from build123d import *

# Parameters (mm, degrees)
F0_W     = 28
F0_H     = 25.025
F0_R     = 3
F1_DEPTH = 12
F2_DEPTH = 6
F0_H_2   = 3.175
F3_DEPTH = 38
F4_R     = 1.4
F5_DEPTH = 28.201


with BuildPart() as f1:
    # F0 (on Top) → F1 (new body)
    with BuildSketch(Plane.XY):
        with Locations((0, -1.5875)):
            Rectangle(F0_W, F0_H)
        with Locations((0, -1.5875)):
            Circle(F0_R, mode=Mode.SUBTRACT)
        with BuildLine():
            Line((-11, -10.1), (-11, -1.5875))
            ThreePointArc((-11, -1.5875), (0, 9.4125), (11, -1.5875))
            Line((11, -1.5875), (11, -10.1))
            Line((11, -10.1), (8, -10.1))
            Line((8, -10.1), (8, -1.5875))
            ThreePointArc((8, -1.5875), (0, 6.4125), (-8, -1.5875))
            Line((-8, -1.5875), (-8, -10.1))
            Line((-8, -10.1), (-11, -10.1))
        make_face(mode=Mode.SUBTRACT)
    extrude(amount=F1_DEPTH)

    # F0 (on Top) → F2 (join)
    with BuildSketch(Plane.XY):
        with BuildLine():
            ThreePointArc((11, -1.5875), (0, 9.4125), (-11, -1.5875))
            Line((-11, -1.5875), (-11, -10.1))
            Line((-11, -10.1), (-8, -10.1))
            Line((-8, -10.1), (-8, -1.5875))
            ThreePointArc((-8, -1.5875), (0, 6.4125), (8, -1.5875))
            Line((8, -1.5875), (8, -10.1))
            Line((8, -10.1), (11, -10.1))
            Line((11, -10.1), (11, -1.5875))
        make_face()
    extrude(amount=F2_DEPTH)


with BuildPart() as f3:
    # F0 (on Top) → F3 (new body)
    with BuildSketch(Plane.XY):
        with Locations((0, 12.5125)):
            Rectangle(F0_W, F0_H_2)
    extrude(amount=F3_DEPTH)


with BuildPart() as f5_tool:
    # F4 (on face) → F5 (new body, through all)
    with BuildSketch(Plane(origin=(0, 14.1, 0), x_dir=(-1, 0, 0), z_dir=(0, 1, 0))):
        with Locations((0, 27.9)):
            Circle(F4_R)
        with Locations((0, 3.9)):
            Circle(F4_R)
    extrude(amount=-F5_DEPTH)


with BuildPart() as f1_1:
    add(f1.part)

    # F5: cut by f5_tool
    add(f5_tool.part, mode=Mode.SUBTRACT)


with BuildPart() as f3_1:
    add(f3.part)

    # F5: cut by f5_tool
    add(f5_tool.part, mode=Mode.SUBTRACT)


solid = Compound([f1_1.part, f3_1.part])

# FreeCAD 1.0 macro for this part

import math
import FreeCAD as App
import Part
import Sketcher

V = App.Vector

doc = App.newDocument("Part")
body = doc.addObject("PartDesign::Body", "Body")

# Sketch on XY plane
sketch1 = body.newObject("Sketcher::SketchObject", "Sketch")
sketch1.AttachmentSupport = (doc.getObject("XY_Plane"), [""])
sketch1.MapMode = "FlatFace"
sketch1.addGeometry([
    Part.LineSegment(V(-14, 10.9, 0), V(-14, -14.1, 0)),  # 0
    Part.LineSegment(V(-14, -14.1, 0), V(14, -14.1, 0)),  # 1
    Part.LineSegment(V(14, -14.1, 0), V(14, 10.9, 0)),  # 2
    Part.LineSegment(V(14, 10.9, 0), V(-14, 10.9, 0)),  # 3
    Part.Circle(V(0, -1.6, 0), V(0, 0, 1), 3),  # 4
    Part.LineSegment(V(-8, -10.1, 0), V(-11, -10.1, 0)),  # 5
    Part.LineSegment(V(-11, -10.1, 0), V(-11, -1.6, 0)),  # 6
    Part.ArcOfCircle(Part.Circle(V(0, -1.6, 0), V(0, 0, 1), 11), math.radians(0), math.radians(180)),  # 7
    Part.LineSegment(V(11, -1.6, 0), V(11, -10.1, 0)),  # 8
    Part.LineSegment(V(11, -10.1, 0), V(8, -10.1, 0)),  # 9
    Part.LineSegment(V(8, -10.1, 0), V(8, -1.6, 0)),  # 10
    Part.ArcOfCircle(Part.Circle(V(0, -1.6, 0), V(0, 0, 1), 8), math.radians(0), math.radians(180)),  # 11
    Part.LineSegment(V(-8, -1.6, 0), V(-8, -10.1, 0)),  # 12
], False)
sketch1.addConstraint([
    Sketcher.Constraint("Coincident", 0, 2, 1, 1),
    Sketcher.Constraint("Coincident", 1, 2, 2, 1),
    Sketcher.Constraint("Coincident", 2, 2, 3, 1),
    Sketcher.Constraint("Coincident", 3, 2, 0, 1),
    Sketcher.Constraint("Coincident", 5, 2, 6, 1),
    Sketcher.Constraint("Tangent", 6, 2, 7, 2),
    Sketcher.Constraint("Tangent", 7, 1, 8, 1),
    Sketcher.Constraint("Coincident", 8, 2, 9, 1),
    Sketcher.Constraint("Coincident", 9, 2, 10, 1),
    Sketcher.Constraint("Tangent", 10, 2, 11, 1),
    Sketcher.Constraint("Tangent", 11, 2, 12, 1),
    Sketcher.Constraint("Coincident", 12, 2, 5, 1),
    Sketcher.Constraint("Vertical", 0),
    Sketcher.Constraint("Horizontal", 1),
    Sketcher.Constraint("Vertical", 2),
    Sketcher.Constraint("Horizontal", 3),
    Sketcher.Constraint("Horizontal", 5),
    Sketcher.Constraint("Vertical", 6),
    Sketcher.Constraint("Vertical", 8),
    Sketcher.Constraint("Horizontal", 9),
    Sketcher.Constraint("Vertical", 10),
    Sketcher.Constraint("Vertical", 12),
    Sketcher.Constraint("Coincident", 7, 3, 4, 3),
    Sketcher.Constraint("Coincident", 11, 3, 4, 3),
    Sketcher.Constraint("Symmetric", 5, 2, 8, 2, -2),
    Sketcher.Constraint("Diameter", 4, 6.0),
    Sketcher.Constraint("Radius", 7, 11.0),
    Sketcher.Constraint("Radius", 11, 8.0),
    Sketcher.Constraint("DistanceX", 1, 1, 1, 2, 28.0),
    Sketcher.Constraint("DistanceX", 0, 2, -1, 1, 14.0),
    Sketcher.Constraint("DistanceY", 0, 2, 5, 2, 4.0),
    Sketcher.Constraint("DistanceY", 0, 2, -1, 1, 14.1),
    Sketcher.Constraint("DistanceY", 0, 2, 0, 1, 25.025),
    Sketcher.Constraint("DistanceY", 6, 1, 6, 2, 8.5125),
])
pad1 = body.newObject("PartDesign::Pad", "Pad")
pad1.Profile = sketch1
pad1.Length = 12

# Sketch on XY plane
sketch2 = body.newObject("Sketcher::SketchObject", "Sketch001")
sketch2.AttachmentSupport = (doc.getObject("XY_Plane"), [""])
sketch2.MapMode = "FlatFace"
sketch2.addGeometry([
    Part.ArcOfCircle(Part.Circle(V(0, -1.6, 0), V(0, 0, 1), 11), math.radians(0), math.radians(180)),  # 0
    Part.LineSegment(V(-11, -1.6, 0), V(-11, -10.1, 0)),  # 1
    Part.LineSegment(V(-11, -10.1, 0), V(-8, -10.1, 0)),  # 2
    Part.LineSegment(V(-8, -10.1, 0), V(-8, -1.6, 0)),  # 3
    Part.ArcOfCircle(Part.Circle(V(0, -1.6, 0), V(0, 0, 1), 8), math.radians(0), math.radians(180)),  # 4
    Part.LineSegment(V(8, -1.6, 0), V(8, -10.1, 0)),  # 5
    Part.LineSegment(V(8, -10.1, 0), V(11, -10.1, 0)),  # 6
    Part.LineSegment(V(11, -10.1, 0), V(11, -1.6, 0)),  # 7
], False)
sketch2.addConstraint([
    Sketcher.Constraint("Tangent", 0, 2, 1, 1),
    Sketcher.Constraint("Coincident", 1, 2, 2, 1),
    Sketcher.Constraint("Coincident", 2, 2, 3, 1),
    Sketcher.Constraint("Tangent", 3, 2, 4, 2),
    Sketcher.Constraint("Tangent", 4, 1, 5, 1),
    Sketcher.Constraint("Coincident", 5, 2, 6, 1),
    Sketcher.Constraint("Coincident", 6, 2, 7, 1),
    Sketcher.Constraint("Tangent", 7, 2, 0, 1),
    Sketcher.Constraint("Vertical", 1),
    Sketcher.Constraint("Horizontal", 2),
    Sketcher.Constraint("Vertical", 3),
    Sketcher.Constraint("Vertical", 5),
    Sketcher.Constraint("Horizontal", 6),
    Sketcher.Constraint("Vertical", 7),
    Sketcher.Constraint("Coincident", 4, 3, 0, 3),
    Sketcher.Constraint("Symmetric", 2, 2, 5, 2, -2),
    Sketcher.Constraint("Radius", 0, 11.0),
    Sketcher.Constraint("Radius", 4, 8.0),
    Sketcher.Constraint("DistanceY", 1, 2, -1, 1, 10.1),
    Sketcher.Constraint("DistanceY", 1, 2, 1, 1, 8.5125),
])
pad2 = body.newObject("PartDesign::Pad", "Pad001")
pad2.Profile = sketch2
pad2.Length = 6
body2 = doc.addObject("PartDesign::Body", "Body001")

# Sketch on XY plane
sketch3 = body2.newObject("Sketcher::SketchObject", "Sketch002")
sketch3.AttachmentSupport = (doc.getObject("XY_Plane001"), [""])
sketch3.MapMode = "FlatFace"
sketch3.addGeometry([
    Part.LineSegment(V(-14, 14.1, 0), V(-14, 10.9, 0)),
    Part.LineSegment(V(-14, 10.9, 0), V(14, 10.9, 0)),
    Part.LineSegment(V(14, 10.9, 0), V(14, 14.1, 0)),
    Part.LineSegment(V(14, 14.1, 0), V(-14, 14.1, 0)),
], False)
sketch3.addConstraint([
    Sketcher.Constraint("Coincident", 0, 2, 1, 1),
    Sketcher.Constraint("Coincident", 1, 2, 2, 1),
    Sketcher.Constraint("Coincident", 2, 2, 3, 1),
    Sketcher.Constraint("Coincident", 3, 2, 0, 1),
    Sketcher.Constraint("Vertical", 0),
    Sketcher.Constraint("Horizontal", 1),
    Sketcher.Constraint("Vertical", 2),
    Sketcher.Constraint("Horizontal", 3),
    Sketcher.Constraint("DistanceX", 1, 1, 1, 2, 28.0),
    Sketcher.Constraint("DistanceX", 0, 2, -1, 1, 14.0),
    Sketcher.Constraint("DistanceY", -1, 1, 2, 2, 14.1),
    Sketcher.Constraint("DistanceY", 0, 2, 0, 1, 3.175),
])
pad3 = body2.newObject("PartDesign::Pad", "Pad002")
pad3.Profile = sketch3
pad3.Length = 38
body3 = doc.addObject("PartDesign::Body", "Body002")
body3.AllowCompound = True

# Sketch on XZ plane
sketch4 = body3.newObject("Sketcher::SketchObject", "Sketch003")
sketch4.AttachmentSupport = (doc.getObject("XZ_Plane002"), [""])
sketch4.MapMode = "FlatFace"
sketch4.AttachmentOffset = App.Placement(V(0, 0, -14.1), App.Rotation())
sketch4.addGeometry([
    Part.Circle(V(0, 27.9, 0), V(0, 0, 1), 1.4),
    Part.Circle(V(0, 3.9, 0), V(0, 0, 1), 1.4),
], False)
sketch4.addConstraint([
    Sketcher.Constraint("Equal", 0, 1),
    Sketcher.Constraint("PointOnObject", 0, 3, -2),
    Sketcher.Constraint("PointOnObject", 1, 3, -2),
    Sketcher.Constraint("Diameter", 0, 2.8),
    Sketcher.Constraint("DistanceY", 1, 3, 0, 3, 24.0),
    Sketcher.Constraint("DistanceY", -1, 1, 0, 3, 27.9),
])
pad4 = body3.newObject("PartDesign::Pad", "Pad003")
pad4.Profile = sketch4
pad4.Length = 28.201
doc.recompute()

body4 = doc.addObject("PartDesign::Body", "Body003")
body4.BaseFeature = body3
boolean = body.newObject("PartDesign::Boolean", "Boolean")
boolean.Type = "Cut"
boolean.addObjects([body4])
doc.recompute()

boolean2 = body2.newObject("PartDesign::Boolean", "Boolean001")
boolean2.Type = "Cut"
boolean2.addObjects([body3])

doc.recompute()
